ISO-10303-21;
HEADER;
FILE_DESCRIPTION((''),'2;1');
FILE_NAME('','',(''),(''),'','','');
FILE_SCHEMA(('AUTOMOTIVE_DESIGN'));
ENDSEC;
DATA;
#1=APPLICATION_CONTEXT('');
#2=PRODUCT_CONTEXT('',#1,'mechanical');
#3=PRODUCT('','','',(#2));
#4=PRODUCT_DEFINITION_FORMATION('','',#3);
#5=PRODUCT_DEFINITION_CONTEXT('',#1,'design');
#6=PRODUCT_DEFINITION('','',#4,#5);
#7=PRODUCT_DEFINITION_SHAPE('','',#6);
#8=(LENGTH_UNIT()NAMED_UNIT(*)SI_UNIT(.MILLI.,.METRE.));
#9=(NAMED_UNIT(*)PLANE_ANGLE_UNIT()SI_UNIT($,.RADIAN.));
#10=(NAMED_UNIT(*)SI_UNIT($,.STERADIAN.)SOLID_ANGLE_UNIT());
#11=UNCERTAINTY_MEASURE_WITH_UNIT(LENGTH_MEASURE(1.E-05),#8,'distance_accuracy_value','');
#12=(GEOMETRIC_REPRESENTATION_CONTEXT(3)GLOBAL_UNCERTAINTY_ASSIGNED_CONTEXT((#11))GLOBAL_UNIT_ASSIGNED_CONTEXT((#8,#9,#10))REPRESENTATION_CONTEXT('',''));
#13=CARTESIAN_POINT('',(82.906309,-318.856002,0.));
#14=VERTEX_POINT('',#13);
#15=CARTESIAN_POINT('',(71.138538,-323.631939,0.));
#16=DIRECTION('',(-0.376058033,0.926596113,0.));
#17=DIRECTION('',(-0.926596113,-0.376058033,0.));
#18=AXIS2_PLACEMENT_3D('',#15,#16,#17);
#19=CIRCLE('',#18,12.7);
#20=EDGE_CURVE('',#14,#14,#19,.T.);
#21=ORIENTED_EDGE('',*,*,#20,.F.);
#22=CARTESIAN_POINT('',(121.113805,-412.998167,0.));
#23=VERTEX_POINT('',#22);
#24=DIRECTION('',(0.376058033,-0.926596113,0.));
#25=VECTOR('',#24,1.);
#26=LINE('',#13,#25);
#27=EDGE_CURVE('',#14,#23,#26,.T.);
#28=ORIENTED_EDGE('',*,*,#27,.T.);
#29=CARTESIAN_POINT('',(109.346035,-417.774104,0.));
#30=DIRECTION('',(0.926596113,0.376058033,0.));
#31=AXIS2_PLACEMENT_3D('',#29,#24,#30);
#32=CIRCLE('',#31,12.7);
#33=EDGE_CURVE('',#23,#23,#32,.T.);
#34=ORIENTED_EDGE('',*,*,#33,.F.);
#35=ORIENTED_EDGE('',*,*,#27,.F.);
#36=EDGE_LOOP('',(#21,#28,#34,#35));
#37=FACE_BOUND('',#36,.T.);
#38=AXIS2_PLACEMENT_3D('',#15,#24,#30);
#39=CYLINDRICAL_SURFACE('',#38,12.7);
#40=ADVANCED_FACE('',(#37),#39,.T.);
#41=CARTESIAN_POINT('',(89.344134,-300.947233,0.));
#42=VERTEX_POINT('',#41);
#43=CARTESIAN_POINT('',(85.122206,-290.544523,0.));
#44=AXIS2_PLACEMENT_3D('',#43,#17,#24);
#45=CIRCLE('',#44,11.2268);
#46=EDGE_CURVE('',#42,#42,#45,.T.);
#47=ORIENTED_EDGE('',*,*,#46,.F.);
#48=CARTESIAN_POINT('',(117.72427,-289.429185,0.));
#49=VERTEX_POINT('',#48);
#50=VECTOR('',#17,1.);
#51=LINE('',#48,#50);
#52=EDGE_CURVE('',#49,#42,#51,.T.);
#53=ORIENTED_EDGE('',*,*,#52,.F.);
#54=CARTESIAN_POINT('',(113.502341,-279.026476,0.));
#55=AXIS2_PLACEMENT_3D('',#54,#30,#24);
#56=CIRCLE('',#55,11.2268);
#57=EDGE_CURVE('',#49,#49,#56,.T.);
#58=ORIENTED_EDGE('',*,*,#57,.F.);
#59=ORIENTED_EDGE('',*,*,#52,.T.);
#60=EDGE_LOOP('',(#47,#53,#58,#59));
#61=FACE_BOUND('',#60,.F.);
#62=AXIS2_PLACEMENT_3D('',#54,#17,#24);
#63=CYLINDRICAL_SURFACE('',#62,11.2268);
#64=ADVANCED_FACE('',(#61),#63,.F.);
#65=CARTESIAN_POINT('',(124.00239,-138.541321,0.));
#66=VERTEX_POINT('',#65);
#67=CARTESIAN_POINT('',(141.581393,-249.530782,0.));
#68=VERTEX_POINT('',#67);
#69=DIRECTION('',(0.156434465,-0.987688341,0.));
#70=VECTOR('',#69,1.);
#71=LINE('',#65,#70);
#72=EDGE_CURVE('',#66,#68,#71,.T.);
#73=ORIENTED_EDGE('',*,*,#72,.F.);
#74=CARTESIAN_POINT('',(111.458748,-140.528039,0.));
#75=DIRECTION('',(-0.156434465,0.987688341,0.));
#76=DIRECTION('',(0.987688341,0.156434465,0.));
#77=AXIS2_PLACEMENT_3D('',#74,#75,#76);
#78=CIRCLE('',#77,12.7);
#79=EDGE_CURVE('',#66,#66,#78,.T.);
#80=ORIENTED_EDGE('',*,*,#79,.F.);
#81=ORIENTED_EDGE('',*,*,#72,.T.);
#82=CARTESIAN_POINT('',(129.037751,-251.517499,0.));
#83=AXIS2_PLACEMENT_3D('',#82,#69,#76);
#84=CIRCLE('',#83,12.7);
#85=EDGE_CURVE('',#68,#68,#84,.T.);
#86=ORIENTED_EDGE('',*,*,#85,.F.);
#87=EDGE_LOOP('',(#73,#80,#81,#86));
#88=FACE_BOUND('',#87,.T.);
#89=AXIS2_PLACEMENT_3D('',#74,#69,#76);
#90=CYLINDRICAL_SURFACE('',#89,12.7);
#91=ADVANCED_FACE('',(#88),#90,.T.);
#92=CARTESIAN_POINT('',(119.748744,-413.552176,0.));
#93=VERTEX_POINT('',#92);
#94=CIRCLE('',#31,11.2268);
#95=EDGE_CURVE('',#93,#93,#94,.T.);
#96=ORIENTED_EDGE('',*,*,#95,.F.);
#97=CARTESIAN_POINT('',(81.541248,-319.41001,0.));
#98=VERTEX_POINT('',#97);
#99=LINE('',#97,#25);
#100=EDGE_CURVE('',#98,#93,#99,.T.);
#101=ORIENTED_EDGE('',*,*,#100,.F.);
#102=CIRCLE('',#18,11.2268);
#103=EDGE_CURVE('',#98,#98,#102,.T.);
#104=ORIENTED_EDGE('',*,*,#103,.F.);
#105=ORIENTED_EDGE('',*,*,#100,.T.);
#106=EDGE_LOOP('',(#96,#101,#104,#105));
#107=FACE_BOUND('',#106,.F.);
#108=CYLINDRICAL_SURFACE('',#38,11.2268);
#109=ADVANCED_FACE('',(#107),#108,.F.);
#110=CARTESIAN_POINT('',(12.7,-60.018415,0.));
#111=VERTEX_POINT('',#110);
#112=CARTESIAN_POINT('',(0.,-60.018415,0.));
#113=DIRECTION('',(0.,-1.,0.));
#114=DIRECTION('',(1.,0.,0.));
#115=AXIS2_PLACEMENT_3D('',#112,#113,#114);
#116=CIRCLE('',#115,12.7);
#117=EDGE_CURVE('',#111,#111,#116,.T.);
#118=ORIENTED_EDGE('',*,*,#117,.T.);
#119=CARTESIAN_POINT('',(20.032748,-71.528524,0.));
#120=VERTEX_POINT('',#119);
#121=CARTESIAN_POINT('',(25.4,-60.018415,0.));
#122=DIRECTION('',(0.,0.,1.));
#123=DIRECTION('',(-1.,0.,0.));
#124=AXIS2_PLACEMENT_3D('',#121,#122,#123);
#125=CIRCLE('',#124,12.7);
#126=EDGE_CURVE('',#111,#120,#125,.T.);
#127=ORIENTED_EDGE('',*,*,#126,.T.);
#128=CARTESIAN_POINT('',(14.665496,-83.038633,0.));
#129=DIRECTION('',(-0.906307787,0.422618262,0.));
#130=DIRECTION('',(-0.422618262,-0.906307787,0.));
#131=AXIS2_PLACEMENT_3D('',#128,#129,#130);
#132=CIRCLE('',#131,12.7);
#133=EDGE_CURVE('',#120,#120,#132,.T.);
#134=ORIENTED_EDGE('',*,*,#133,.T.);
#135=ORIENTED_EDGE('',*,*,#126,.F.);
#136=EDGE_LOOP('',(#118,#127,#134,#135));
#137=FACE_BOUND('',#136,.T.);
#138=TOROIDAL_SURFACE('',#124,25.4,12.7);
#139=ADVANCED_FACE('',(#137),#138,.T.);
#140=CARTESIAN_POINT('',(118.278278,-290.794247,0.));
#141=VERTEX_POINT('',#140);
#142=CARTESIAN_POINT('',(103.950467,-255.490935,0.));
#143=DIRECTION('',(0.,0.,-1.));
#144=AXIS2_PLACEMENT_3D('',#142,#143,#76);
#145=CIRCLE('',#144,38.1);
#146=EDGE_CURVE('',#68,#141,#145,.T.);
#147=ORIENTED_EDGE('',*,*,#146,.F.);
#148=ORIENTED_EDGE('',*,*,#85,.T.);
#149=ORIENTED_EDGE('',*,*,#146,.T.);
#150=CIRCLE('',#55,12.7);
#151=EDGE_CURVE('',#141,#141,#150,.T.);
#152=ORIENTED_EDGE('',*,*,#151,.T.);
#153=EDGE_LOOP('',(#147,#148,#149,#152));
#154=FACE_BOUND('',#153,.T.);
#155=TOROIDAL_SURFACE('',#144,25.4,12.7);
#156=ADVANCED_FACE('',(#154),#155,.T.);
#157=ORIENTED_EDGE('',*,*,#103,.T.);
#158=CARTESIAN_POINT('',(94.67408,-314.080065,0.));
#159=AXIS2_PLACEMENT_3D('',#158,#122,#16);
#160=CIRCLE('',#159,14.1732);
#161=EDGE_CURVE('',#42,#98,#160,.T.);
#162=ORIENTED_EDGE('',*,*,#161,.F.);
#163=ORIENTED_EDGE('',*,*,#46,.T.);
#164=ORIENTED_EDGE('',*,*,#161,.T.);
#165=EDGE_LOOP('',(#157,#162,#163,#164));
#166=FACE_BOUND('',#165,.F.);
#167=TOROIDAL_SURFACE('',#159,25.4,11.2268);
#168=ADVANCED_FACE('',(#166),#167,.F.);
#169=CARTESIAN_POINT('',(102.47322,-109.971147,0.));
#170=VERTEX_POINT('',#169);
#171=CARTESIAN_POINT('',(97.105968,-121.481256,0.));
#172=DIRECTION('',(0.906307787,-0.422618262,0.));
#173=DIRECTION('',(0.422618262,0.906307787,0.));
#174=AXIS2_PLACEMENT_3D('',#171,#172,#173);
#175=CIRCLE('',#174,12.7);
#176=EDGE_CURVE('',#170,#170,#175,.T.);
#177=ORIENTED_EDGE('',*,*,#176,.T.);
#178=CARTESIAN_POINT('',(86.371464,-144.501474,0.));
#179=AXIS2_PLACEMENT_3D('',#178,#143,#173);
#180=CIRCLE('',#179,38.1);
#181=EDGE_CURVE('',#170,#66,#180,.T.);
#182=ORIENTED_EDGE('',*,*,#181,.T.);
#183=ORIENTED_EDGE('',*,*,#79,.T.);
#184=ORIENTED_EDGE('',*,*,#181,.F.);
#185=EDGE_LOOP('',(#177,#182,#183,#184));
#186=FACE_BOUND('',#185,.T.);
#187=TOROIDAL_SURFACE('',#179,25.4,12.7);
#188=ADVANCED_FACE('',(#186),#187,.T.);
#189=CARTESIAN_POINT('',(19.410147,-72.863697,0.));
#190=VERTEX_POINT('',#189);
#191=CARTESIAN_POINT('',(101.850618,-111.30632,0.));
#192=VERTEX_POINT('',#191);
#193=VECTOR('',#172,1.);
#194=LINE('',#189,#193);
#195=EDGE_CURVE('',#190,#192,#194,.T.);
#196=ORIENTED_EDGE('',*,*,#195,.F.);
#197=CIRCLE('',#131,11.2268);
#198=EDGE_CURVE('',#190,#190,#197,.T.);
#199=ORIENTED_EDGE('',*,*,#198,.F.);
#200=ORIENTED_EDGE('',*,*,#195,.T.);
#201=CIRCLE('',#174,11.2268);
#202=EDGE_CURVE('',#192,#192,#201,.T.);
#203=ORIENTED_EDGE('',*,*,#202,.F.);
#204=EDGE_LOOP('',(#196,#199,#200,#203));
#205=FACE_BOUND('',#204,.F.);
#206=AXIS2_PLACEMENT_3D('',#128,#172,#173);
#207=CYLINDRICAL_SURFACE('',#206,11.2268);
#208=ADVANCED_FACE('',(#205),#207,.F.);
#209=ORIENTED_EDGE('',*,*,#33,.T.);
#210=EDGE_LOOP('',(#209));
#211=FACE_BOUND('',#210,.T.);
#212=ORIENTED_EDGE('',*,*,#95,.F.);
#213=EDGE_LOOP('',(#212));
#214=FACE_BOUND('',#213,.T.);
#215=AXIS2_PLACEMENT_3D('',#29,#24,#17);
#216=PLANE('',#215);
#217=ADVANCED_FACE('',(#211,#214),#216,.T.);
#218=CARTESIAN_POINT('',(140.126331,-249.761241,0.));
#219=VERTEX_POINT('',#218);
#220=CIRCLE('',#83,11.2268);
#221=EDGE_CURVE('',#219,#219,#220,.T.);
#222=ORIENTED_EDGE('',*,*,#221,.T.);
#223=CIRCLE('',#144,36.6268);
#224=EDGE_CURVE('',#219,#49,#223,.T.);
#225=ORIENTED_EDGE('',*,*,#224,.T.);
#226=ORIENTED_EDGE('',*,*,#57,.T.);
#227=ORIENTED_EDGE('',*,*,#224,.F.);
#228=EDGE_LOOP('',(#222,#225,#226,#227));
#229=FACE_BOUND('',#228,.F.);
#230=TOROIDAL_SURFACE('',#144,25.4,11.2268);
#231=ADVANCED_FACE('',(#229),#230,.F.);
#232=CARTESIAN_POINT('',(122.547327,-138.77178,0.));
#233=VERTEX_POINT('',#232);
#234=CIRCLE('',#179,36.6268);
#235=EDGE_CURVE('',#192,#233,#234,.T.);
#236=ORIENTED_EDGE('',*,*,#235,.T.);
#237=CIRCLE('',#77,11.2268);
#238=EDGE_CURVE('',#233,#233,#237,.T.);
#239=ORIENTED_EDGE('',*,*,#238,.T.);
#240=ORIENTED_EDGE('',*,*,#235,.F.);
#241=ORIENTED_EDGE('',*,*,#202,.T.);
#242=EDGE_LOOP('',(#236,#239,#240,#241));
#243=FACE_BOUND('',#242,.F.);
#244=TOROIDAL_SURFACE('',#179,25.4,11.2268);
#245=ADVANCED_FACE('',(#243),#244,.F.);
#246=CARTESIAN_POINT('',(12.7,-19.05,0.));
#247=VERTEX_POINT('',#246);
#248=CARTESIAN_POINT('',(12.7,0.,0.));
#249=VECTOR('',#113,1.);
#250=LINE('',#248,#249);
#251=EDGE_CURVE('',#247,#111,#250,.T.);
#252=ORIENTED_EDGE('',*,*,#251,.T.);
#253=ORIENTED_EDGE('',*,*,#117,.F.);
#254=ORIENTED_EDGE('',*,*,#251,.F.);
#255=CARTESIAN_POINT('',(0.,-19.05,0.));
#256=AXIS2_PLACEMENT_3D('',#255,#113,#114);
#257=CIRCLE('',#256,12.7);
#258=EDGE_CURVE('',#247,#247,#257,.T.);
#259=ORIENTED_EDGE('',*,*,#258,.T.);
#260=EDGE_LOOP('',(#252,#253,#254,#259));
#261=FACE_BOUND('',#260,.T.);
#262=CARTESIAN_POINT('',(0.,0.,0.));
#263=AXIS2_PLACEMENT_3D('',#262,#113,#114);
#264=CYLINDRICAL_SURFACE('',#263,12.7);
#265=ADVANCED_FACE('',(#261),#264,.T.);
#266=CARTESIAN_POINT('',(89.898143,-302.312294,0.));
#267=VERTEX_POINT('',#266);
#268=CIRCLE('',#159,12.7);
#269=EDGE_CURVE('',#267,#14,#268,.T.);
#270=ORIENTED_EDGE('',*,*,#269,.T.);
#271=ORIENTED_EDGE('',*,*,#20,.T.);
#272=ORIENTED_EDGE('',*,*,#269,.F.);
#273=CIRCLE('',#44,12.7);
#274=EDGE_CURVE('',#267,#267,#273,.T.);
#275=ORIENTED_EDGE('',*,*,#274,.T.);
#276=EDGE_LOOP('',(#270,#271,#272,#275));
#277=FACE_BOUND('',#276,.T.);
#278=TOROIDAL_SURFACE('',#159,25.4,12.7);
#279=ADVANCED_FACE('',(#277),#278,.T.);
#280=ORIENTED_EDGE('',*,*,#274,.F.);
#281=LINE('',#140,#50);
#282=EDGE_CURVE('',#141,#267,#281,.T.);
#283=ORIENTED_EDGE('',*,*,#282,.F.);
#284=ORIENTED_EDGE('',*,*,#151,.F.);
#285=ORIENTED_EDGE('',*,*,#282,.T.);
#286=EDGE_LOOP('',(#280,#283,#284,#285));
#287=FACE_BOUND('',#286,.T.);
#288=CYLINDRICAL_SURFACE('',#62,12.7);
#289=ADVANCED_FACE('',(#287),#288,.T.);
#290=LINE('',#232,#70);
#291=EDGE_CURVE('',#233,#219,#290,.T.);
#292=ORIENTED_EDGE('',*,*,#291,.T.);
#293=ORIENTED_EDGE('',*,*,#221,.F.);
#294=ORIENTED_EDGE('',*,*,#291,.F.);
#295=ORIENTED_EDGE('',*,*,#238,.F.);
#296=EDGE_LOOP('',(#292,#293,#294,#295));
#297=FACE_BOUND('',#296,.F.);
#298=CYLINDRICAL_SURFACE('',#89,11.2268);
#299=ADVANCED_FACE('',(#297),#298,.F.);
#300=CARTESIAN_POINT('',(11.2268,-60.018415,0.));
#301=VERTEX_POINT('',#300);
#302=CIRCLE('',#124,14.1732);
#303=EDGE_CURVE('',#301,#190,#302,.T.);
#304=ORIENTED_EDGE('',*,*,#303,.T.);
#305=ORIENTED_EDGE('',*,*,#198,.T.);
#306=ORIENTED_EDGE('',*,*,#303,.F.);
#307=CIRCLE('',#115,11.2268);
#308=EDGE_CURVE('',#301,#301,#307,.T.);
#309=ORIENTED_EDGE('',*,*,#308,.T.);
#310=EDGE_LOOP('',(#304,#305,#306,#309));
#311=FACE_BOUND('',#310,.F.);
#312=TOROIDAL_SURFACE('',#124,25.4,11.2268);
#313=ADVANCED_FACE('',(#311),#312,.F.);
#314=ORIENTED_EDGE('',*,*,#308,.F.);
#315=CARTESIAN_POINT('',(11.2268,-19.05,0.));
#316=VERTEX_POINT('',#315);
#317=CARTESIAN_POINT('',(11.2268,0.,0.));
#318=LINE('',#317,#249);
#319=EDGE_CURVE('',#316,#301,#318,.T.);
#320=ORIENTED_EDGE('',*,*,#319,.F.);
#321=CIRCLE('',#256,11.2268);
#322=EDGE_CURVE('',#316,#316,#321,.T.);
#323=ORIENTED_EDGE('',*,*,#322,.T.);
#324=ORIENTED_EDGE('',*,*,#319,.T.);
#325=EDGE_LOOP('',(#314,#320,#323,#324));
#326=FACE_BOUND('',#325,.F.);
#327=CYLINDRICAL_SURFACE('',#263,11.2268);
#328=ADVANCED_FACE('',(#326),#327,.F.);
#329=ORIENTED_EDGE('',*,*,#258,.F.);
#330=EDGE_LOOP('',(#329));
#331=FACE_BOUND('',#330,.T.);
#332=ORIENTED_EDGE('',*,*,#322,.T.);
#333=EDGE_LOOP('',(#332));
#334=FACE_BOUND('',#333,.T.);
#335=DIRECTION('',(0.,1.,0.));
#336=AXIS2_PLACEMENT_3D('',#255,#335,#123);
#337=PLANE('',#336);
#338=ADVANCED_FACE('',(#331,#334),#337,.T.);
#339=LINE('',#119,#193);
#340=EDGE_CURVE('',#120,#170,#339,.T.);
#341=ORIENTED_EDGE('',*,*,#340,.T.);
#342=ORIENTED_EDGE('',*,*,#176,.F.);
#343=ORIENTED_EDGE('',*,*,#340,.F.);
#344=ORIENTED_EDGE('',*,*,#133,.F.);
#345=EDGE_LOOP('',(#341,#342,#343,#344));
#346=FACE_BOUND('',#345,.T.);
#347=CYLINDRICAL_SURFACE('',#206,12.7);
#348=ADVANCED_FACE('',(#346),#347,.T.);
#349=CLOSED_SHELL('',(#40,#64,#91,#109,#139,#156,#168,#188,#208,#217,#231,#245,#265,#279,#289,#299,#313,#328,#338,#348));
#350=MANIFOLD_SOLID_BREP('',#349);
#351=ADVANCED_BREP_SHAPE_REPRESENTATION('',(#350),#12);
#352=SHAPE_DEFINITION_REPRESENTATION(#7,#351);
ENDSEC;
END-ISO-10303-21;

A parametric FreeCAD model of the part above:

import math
import FreeCAD as App
import Part
import Sketcher
from FreeCAD import Vector
Q = App.Units.Quantity


def faces_at(feature, points):
    """Names of the faces that lie closest to the given points."""
    faces = feature.Shape.Faces
    near = lambda p: min(range(len(faces)), key=lambda i: faces[i].distToShape(Part.Vertex(*p))[0])
    return sorted({f"Face{near(p) + 1}" for p in points})

doc = App.newDocument("Part")
body = doc.addObject("PartDesign::Body", "Body")

# Sketch on XZ plane
sketch1 = body.newObject("Sketcher::SketchObject", "Sketch")
sketch1.AttachmentSupport = (doc.getObject("XZ_Plane"), [""])
sketch1.MapMode = "FlatFace"
sketch1.addGeometry(Part.Circle(Vector(0, 0, 0), Vector(0, 0, 1), 12.7), False)
sketch1.addConstraint(Sketcher.Constraint("Coincident", 0, 3, -1, 1))
sketch1.addConstraint(Sketcher.Constraint("Diameter", 0, Q("1 in")))

# Sketch on XY plane
sketch2 = body.newObject("Sketcher::SketchObject", "Sketch001")
sketch2.AttachmentSupport = (doc.getObject("XY_Plane"), [""])
sketch2.MapMode = "FlatFace"
sketch2.addGeometry(Part.LineSegment(Vector(0, 0, 0), Vector(0, -60.018415, 0)), False)
sketch2.addGeometry(Part.ArcOfCircle(Part.Circle(Vector(25.4, -60.018415, 0), Vector(0, 0, 1), 25.4), math.radians(180), math.radians(245)), False)
sketch2.addGeometry(Part.LineSegment(Vector(14.665496, -83.038633, 0), Vector(97.105968, -121.481256, 0)), False)
sketch2.addGeometry(Part.ArcOfCircle(Part.Circle(Vector(86.371464, -144.501474, 0), Vector(0, 0, 1), 25.4), math.radians(9), math.radians(65)), False)
sketch2.addGeometry(Part.LineSegment(Vector(111.458748, -140.528039, 0), Vector(129.037751, -251.517499, 0)), False)
sketch2.addGeometry(Part.ArcOfCircle(Part.Circle(Vector(103.950467, -255.490935, 0), Vector(0, 0, 1), 25.4), math.radians(-67.910279), math.radians(9)), False)
sketch2.addGeometry(Part.LineSegment(Vector(113.502341, -279.026476, 0), Vector(85.122206, -290.544523, 0)), False)
sketch2.addGeometry(Part.ArcOfCircle(Part.Circle(Vector(94.67408, -314.080065, 0), Vector(0, 0, 1), 25.4), math.radians(112.089721), math.radians(202.089721)), False)
sketch2.addGeometry(Part.LineSegment(Vector(71.138538, -323.631939, 0), Vector(109.346035, -417.774104, 0)), False)
sketch2.addConstraint(Sketcher.Constraint("Tangent", 0, 2, 1, 1))
sketch2.addConstraint(Sketcher.Constraint("Tangent", 1, 2, 2, 1))
sketch2.addConstraint(Sketcher.Constraint("Tangent", 2, 2, 3, 2))
sketch2.addConstraint(Sketcher.Constraint("Tangent", 3, 1, 4, 1))
sketch2.addConstraint(Sketcher.Constraint("Tangent", 4, 2, 5, 2))
sketch2.addConstraint(Sketcher.Constraint("Tangent", 5, 1, 6, 1))
sketch2.addConstraint(Sketcher.Constraint("Tangent", 6, 2, 7, 1))
sketch2.addConstraint(Sketcher.Constraint("Tangent", 7, 2, 8, 1))
sketch2.addConstraint(Sketcher.Constraint("Vertical", 0))
sketch2.addConstraint(Sketcher.Constraint("Coincident", 0, 1, -1, 1))
sketch2.addConstraint(Sketcher.Constraint("Equal", 1, 3))
sketch2.addConstraint(Sketcher.Constraint("Equal", 3, 5))
sketch2.addConstraint(Sketcher.Constraint("Equal", 5, 7))
sketch2.addConstraint(Sketcher.Constraint("Perpendicular", 6, 8))
sketch2.addConstraint(Sketcher.Constraint("Radius", 1, Q("1 in")))
sketch2.addConstraint(Sketcher.Constraint("Distance", 8, Q("4 in")))
sketch2.addConstraint(Sketcher.Constraint("Angle", 2, Q("-25 deg")))
sketch2.addConstraint(Sketcher.Constraint("Angle", 4, Q("-81 deg")))
sketch2.addConstraint(Sketcher.Constraint("DistanceY", 3, 1, -1, 1, Q("5.5325999 in")))
sketch2.addConstraint(Sketcher.Constraint("DistanceY", 4, 2, -1, 1, Q("251.517499 mm")))
sketch2.addConstraint(Sketcher.Constraint("DistanceY", 5, 3, 1, 2, Q("172.452302 mm")))
sketch2.addConstraint(Sketcher.Constraint("DistanceY", 5, 1, 3, 3, Q("134.525002 mm")))
sketch2.addConstraint(Sketcher.Constraint("DistanceX", -1, 1, 7, 3, Q("94.67408 mm")))
doc.recompute()

additivepipe = body.newObject("PartDesign::AdditivePipe", "AdditivePipe")
additivepipe.Profile = sketch1
additivepipe.Spine = (sketch2, ["Edge1", "Edge2", "Edge3", "Edge4", "Edge5", "Edge6", "Edge7", "Edge8", "Edge9"])
doc.recompute()

thickness = body.newObject("PartDesign::Thickness", "Thickness")
thickness.Base = (additivepipe, faces_at(additivepipe, [(0, 0, 0), (109.346, -417.774, 0)]))
thickness.Value = Q("0.058 in")
thickness.Reversed = True
thickness.Join = "Arc"

# Sketch on XZ plane
sketch3 = body.newObject("Sketcher::SketchObject", "Sketch002")
sketch3.AttachmentSupport = (doc.getObject("XZ_Plane"), [""])
sketch3.MapMode = "FlatFace"
sketch3.addGeometry(Part.Circle(Vector(0, 0, 0), Vector(0, 0, 1), 19.05), False)
sketch3.addConstraint(Sketcher.Constraint("Coincident", 0, 3, -1, 1))
sketch3.addConstraint(Sketcher.Constraint("Diameter", 0, Q("1.5 in")))
pocket1 = body.newObject("PartDesign::Pocket", "Pocket")
pocket1.Profile = sketch3
pocket1.Length = Q("0.75 in")
pocket1.Reversed = True

doc.recompute()
